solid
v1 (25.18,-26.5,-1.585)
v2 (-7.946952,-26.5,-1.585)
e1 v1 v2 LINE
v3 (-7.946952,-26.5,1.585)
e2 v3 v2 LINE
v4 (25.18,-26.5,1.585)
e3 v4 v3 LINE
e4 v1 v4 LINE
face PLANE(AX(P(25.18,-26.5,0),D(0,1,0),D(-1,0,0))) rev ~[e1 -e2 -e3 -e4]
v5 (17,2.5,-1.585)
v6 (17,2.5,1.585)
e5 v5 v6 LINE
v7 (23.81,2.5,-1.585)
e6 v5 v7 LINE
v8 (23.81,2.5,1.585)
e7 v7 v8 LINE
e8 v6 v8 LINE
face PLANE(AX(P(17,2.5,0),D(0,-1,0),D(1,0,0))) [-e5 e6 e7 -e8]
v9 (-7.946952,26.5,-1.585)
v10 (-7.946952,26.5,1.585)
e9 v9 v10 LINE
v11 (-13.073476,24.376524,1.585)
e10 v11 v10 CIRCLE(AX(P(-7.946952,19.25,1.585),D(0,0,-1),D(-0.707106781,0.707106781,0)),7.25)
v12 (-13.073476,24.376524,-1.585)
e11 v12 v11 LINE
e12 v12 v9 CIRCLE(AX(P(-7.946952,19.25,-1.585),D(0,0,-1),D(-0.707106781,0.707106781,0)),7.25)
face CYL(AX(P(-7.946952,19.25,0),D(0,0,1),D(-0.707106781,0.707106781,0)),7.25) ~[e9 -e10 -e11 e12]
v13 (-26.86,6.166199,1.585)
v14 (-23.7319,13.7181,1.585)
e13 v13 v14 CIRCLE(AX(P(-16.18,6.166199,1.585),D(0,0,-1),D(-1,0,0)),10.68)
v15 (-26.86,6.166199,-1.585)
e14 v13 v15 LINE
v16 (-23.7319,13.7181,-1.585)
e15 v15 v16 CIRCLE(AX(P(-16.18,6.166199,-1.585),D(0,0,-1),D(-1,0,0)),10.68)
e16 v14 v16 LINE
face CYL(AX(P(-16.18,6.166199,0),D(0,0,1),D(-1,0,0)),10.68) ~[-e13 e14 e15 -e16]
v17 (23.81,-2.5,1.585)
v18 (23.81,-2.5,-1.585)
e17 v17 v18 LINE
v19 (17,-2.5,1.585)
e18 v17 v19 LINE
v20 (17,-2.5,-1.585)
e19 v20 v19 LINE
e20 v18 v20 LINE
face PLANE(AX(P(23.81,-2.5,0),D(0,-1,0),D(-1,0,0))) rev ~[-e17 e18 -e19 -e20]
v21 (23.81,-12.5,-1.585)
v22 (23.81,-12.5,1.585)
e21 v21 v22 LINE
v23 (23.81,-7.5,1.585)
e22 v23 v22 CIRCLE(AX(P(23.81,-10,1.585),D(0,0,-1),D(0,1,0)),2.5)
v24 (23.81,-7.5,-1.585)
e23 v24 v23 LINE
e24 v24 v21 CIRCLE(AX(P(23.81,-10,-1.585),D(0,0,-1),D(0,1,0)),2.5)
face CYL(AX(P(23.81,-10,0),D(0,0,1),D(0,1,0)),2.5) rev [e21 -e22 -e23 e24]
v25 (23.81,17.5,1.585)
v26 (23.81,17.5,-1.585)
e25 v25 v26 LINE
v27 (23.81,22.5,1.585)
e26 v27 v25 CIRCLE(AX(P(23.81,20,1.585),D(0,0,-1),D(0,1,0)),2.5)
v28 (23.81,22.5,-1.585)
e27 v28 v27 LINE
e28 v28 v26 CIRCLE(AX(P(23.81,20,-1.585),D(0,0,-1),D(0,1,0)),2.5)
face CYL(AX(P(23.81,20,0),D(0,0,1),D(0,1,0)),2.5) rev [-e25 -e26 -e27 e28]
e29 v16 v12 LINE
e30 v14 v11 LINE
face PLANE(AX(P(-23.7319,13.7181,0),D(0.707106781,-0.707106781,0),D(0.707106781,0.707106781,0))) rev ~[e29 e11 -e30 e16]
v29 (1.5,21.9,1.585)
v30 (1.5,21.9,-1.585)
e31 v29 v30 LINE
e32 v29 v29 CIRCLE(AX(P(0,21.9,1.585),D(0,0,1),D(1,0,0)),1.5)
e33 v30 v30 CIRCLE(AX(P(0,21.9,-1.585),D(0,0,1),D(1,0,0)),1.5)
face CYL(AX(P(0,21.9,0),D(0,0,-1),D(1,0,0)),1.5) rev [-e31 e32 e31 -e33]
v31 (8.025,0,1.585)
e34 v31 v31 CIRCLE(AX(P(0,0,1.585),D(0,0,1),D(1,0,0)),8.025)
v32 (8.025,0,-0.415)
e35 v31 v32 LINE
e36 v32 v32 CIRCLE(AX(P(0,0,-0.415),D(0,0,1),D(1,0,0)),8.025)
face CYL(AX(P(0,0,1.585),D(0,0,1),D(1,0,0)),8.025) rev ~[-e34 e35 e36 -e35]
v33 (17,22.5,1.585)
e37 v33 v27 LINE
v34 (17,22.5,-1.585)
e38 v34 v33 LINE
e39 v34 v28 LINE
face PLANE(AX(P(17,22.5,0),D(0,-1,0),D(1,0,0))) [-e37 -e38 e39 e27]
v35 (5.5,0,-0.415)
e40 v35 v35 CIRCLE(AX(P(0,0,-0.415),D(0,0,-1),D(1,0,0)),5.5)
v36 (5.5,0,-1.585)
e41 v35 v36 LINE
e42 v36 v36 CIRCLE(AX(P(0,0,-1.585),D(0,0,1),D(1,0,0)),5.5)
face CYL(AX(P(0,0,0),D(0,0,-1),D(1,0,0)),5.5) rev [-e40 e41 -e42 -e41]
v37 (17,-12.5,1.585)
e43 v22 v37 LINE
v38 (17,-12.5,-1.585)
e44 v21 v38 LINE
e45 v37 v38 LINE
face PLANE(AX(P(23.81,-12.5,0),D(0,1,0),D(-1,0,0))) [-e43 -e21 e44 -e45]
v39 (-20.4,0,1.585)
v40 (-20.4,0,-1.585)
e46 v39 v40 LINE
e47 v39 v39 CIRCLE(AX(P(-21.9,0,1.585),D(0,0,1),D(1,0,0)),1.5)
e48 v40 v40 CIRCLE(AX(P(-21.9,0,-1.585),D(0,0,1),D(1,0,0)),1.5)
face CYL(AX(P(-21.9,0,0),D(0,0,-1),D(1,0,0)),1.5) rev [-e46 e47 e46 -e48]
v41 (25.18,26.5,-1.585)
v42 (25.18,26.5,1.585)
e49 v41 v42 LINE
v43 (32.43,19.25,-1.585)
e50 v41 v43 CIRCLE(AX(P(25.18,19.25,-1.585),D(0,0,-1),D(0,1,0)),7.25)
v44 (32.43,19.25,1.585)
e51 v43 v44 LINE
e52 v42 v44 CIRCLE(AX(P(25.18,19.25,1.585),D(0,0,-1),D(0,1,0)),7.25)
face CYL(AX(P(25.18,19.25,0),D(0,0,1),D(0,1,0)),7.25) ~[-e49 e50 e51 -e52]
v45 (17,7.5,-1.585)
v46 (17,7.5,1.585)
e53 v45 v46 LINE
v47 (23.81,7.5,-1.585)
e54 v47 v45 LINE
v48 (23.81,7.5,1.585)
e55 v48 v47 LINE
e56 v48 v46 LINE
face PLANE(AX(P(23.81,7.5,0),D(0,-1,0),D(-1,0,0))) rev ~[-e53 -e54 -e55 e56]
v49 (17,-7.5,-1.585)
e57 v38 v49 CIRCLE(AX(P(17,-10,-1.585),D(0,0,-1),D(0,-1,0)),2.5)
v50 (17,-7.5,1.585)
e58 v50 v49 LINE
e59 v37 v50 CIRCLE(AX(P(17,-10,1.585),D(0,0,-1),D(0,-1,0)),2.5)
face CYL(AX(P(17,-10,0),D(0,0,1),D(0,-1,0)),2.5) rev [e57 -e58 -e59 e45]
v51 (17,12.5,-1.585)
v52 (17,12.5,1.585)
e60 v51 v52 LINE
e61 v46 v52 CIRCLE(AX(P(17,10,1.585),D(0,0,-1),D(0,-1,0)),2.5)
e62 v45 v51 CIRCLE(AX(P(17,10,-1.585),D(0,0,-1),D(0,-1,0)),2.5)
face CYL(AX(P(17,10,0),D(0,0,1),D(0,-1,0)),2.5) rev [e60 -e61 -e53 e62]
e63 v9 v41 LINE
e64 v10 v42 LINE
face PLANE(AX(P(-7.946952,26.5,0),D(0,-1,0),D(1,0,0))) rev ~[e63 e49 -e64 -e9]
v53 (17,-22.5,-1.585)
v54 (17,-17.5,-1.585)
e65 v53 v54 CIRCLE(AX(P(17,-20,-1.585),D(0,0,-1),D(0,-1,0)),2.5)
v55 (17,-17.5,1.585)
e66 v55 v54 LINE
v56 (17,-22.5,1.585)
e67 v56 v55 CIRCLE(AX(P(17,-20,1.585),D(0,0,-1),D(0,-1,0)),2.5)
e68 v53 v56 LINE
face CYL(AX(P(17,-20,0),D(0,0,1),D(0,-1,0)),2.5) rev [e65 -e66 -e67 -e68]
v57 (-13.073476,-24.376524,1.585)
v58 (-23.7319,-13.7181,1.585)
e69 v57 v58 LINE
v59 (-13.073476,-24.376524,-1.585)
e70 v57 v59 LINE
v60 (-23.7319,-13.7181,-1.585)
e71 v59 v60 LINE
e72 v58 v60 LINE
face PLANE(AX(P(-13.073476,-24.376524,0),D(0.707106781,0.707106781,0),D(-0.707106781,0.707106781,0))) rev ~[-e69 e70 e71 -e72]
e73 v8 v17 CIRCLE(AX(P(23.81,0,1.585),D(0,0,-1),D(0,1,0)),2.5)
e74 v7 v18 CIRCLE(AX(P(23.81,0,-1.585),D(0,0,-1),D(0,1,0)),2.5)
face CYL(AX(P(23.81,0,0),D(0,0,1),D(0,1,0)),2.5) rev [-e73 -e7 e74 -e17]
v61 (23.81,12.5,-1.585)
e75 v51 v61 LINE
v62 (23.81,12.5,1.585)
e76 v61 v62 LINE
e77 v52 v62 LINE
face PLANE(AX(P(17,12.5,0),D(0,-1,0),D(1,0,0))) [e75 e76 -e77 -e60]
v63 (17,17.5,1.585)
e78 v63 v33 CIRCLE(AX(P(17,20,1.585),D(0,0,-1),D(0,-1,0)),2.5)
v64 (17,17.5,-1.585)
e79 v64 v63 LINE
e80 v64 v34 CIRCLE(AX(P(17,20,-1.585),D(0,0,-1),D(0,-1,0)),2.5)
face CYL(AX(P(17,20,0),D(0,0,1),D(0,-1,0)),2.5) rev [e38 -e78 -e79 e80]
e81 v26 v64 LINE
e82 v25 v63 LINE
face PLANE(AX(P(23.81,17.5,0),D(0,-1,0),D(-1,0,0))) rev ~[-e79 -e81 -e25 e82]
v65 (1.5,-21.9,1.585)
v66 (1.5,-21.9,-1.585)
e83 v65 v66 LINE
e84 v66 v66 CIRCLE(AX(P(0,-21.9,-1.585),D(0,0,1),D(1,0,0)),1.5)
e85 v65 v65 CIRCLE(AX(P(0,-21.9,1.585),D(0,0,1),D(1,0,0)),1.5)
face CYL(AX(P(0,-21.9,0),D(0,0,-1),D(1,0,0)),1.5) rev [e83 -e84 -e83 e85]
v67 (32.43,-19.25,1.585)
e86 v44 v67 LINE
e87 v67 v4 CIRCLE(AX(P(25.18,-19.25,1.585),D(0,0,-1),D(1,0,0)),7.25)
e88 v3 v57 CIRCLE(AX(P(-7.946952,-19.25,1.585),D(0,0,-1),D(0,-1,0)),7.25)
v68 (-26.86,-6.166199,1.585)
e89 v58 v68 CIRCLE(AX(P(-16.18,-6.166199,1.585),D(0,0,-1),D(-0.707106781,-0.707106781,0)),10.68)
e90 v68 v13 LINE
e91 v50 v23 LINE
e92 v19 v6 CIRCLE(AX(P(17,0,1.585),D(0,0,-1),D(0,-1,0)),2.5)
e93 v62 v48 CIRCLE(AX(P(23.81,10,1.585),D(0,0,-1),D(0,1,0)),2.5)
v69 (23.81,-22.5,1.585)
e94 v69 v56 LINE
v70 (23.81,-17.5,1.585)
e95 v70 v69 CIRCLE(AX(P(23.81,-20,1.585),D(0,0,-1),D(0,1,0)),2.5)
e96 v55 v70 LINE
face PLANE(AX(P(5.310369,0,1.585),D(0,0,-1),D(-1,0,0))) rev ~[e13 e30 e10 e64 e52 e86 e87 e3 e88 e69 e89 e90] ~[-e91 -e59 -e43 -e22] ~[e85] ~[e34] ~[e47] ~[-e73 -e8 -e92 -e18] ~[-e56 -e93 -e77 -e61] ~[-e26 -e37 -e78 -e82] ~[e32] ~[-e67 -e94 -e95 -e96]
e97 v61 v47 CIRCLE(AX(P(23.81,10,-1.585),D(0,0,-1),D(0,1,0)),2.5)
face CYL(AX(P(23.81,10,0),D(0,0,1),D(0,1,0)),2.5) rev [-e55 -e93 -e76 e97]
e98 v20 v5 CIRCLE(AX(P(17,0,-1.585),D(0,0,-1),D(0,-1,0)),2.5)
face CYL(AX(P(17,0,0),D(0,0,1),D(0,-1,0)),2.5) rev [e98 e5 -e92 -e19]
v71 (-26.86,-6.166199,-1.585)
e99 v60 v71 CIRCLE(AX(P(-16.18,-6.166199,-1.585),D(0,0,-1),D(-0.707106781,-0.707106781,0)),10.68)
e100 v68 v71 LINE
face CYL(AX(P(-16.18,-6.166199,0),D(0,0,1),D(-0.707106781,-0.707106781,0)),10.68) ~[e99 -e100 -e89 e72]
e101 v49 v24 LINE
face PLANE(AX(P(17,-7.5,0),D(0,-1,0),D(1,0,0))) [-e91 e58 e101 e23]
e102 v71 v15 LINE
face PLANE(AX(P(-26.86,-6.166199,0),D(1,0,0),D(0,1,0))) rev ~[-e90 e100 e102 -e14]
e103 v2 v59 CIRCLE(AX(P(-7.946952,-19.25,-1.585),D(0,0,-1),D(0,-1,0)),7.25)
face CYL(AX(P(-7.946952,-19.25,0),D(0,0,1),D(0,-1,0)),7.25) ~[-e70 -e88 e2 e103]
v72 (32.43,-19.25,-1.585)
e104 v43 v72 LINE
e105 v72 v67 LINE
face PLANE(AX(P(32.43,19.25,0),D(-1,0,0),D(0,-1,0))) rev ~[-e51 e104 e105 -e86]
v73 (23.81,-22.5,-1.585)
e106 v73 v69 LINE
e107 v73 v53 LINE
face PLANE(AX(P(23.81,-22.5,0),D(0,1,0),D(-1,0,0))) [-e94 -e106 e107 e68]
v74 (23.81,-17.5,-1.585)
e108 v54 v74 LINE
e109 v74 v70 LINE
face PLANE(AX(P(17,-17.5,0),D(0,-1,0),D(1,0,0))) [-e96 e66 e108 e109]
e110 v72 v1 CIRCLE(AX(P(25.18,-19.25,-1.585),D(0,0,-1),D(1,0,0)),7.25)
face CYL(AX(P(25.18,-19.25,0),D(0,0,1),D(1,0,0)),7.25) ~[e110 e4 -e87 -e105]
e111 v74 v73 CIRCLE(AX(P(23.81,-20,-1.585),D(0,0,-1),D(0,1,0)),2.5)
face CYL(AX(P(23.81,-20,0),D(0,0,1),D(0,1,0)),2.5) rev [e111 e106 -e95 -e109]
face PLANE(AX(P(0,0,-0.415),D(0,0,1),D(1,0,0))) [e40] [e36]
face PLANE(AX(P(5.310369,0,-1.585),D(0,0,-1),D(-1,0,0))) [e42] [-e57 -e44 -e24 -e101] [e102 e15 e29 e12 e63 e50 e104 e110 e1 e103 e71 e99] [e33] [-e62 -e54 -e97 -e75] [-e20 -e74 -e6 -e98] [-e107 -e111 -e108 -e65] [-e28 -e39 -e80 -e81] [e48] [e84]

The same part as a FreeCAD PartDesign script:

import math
import FreeCAD as App
import Part
import Sketcher
from FreeCAD import Vector

doc = App.newDocument("Part")
body = doc.addObject("PartDesign::Body", "Body")

sketch1 = body.newObject("Sketcher::SketchObject", "Sketch")
sketch1.AttachmentSupport = (doc.getObject("XY_Plane"), [""])
sketch1.MapMode = "FlatFace"
sketch1.addGeometry([
    Part.LineSegment(Vector(-7.9, -26.5, 0), Vector(25.2, -26.5, 0)),
    Part.ArcOfCircle(Part.Circle(Vector(25.2, -19.3, 0), Vector(0, 0, 1), 7.2), math.radians(-90), math.radians(0)),
    Part.LineSegment(Vector(32.4, -19.2, 0), Vector(32.4, 19.2, 0)),
    Part.ArcOfCircle(Part.Circle(Vector(25.2, 19.3, 0), Vector(0, 0, 1), 7.2), math.radians(0), math.radians(90)),
    Part.LineSegment(Vector(25.2, 26.5, 0), Vector(-7.9, 26.5, 0)),
    Part.ArcOfCircle(Part.Circle(Vector(-7.9, 19.3, 0), Vector(0, 0, 1), 7.2), math.radians(90), math.radians(135)),
    Part.LineSegment(Vector(-13.1, 24.4, 0), Vector(-23.7, 13.7, 0)),
    Part.ArcOfCircle(Part.Circle(Vector(-16.2, 6.2, 0), Vector(0, 0, 1), 10.7), math.radians(135), math.radians(180)),
    Part.LineSegment(Vector(-26.9, 6.2, 0), Vector(-26.9, -6.2, 0)),
    Part.ArcOfCircle(Part.Circle(Vector(-16.2, -6.2, 0), Vector(0, 0, 1), 10.7), math.radians(180), math.radians(225)),
    Part.LineSegment(Vector(-23.7, -13.7, 0), Vector(-13.1, -24.4, 0)),
    Part.ArcOfCircle(Part.Circle(Vector(-7.9, -19.3, 0), Vector(0, 0, 1), 7.2), math.radians(-135), math.radians(-90)),
    Part.LineSegment(Vector(17, -17.5, 0), Vector(23.8, -17.5, 0)),
    Part.ArcOfCircle(Part.Circle(Vector(23.8, -20, 0), Vector(0, 0, 1), 2.5), math.radians(-90), math.radians(90)),
    Part.LineSegment(Vector(23.8, -22.5, 0), Vector(17, -22.5, 0)),
    Part.ArcOfCircle(Part.Circle(Vector(17, -20, 0), Vector(0, 0, 1), 2.5), math.radians(90), math.radians(270)),
    Part.LineSegment(Vector(17, -7.5, 0), Vector(23.8, -7.5, 0)),
    Part.ArcOfCircle(Part.Circle(Vector(23.8, -10, 0), Vector(0, 0, 1), 2.5), math.radians(-90), math.radians(90)),
    Part.LineSegment(Vector(23.8, -12.5, 0), Vector(17, -12.5, 0)),
    Part.ArcOfCircle(Part.Circle(Vector(17, -10, 0), Vector(0, 0, 1), 2.5), math.radians(90), math.radians(270)),
    Part.Circle(Vector(0, -21.9, 0), Vector(0, 0, 1), 1.5),
    Part.LineSegment(Vector(17, 2.5, 0), Vector(23.8, 2.5, 0)),
    Part.ArcOfCircle(Part.Circle(Vector(23.8, 0, 0), Vector(0, 0, 1), 2.5), math.radians(-90), math.radians(90)),
    Part.LineSegment(Vector(23.8, -2.5, 0), Vector(17, -2.5, 0)),
    Part.ArcOfCircle(Part.Circle(Vector(17, 0, 0), Vector(0, 0, 1), 2.5), math.radians(90), math.radians(270)),
    Part.LineSegment(Vector(17, 12.5, 0), Vector(23.8, 12.5, 0)),
    Part.ArcOfCircle(Part.Circle(Vector(23.8, 10, 0), Vector(0, 0, 1), 2.5), math.radians(-90), math.radians(90)),
    Part.LineSegment(Vector(23.8, 7.5, 0), Vector(17, 7.5, 0)),
    Part.ArcOfCircle(Part.Circle(Vector(17, 10, 0), Vector(0, 0, 1), 2.5), math.radians(90), math.radians(270)),
    Part.LineSegment(Vector(17, 22.5, 0), Vector(23.8, 22.5, 0)),
    Part.ArcOfCircle(Part.Circle(Vector(23.8, 20, 0), Vector(0, 0, 1), 2.5), math.radians(-90), math.radians(90)),
    Part.LineSegment(Vector(23.8, 17.5, 0), Vector(17, 17.5, 0)),
    Part.ArcOfCircle(Part.Circle(Vector(17, 20, 0), Vector(0, 0, 1), 2.5), math.radians(90), math.radians(270)),
    Part.Circle(Vector(0, 0, 0), Vector(0, 0, 1), 5.5),
    Part.Circle(Vector(-21.9, 0, 0), Vector(0, 0, 1), 1.5),
    Part.Circle(Vector(0, 21.9, 0), Vector(0, 0, 1), 1.5),
], False)
sketch1.addConstraint([
    Sketcher.Constraint("Tangent", 0, 2, 1, 1),
    Sketcher.Constraint("Tangent", 1, 2, 2, 1),
    Sketcher.Constraint("Tangent", 2, 2, 3, 1),
    Sketcher.Constraint("Tangent", 3, 2, 4, 1),
    Sketcher.Constraint("Tangent", 4, 2, 5, 1),
    Sketcher.Constraint("Tangent", 5, 2, 6, 1),
    Sketcher.Constraint("Tangent", 6, 2, 7, 1),
    Sketcher.Constraint("Tangent", 7, 2, 8, 1),
    Sketcher.Constraint("Tangent", 8, 2, 9, 1),
    Sketcher.Constraint("Tangent", 9, 2, 10, 1),
    Sketcher.Constraint("Tangent", 10, 2, 11, 1),
    Sketcher.Constraint("Tangent", 11, 2, 0, 1),
    Sketcher.Constraint("Tangent", 12, 2, 13, 2),
    Sketcher.Constraint("Tangent", 13, 1, 14, 1),
    Sketcher.Constraint("Tangent", 14, 2, 15, 2),
    Sketcher.Constraint("Tangent", 15, 1, 12, 1),
    Sketcher.Constraint("Tangent", 16, 2, 17, 2),
    Sketcher.Constraint("Tangent", 17, 1, 18, 1),
    Sketcher.Constraint("Tangent", 18, 2, 19, 2),
    Sketcher.Constraint("Tangent", 19, 1, 16, 1),
    Sketcher.Constraint("Tangent", 21, 2, 22, 2),
    Sketcher.Constraint("Tangent", 22, 1, 23, 1),
    Sketcher.Constraint("Tangent", 23, 2, 24, 2),
    Sketcher.Constraint("Tangent", 24, 1, 21, 1),
    Sketcher.Constraint("Tangent", 25, 2, 26, 2),
    Sketcher.Constraint("Tangent", 26, 1, 27, 1),
    Sketcher.Constraint("Tangent", 27, 2, 28, 2),
    Sketcher.Constraint("Tangent", 28, 1, 25, 1),
    Sketcher.Constraint("Tangent", 29, 2, 30, 2),
    Sketcher.Constraint("Tangent", 30, 1, 31, 1),
    Sketcher.Constraint("Tangent", 31, 2, 32, 2),
    Sketcher.Constraint("Tangent", 32, 1, 29, 1),
    Sketcher.Constraint("Horizontal", 0),
    Sketcher.Constraint("Vertical", 2),
    Sketcher.Constraint("Horizontal", 4),
    Sketcher.Constraint("Vertical", 8),
    Sketcher.Constraint("Horizontal", 12),
    Sketcher.Constraint("Horizontal", 14),
    Sketcher.Constraint("Horizontal", 16),
    Sketcher.Constraint("Horizontal", 18),
    Sketcher.Constraint("Horizontal", 21),
    Sketcher.Constraint("Horizontal", 23),
    Sketcher.Constraint("Horizontal", 25),
    Sketcher.Constraint("Horizontal", 27),
    Sketcher.Constraint("Horizontal", 29),
    Sketcher.Constraint("Horizontal", 31),
    Sketcher.Constraint("Coincident", 33, 3, -1, 1),
    Sketcher.Constraint("Equal", 1, 3),
    Sketcher.Constraint("Equal", 3, 5),
    Sketcher.Constraint("Equal", 7, 9),
    Sketcher.Constraint("Equal", 5, 11),
    Sketcher.Constraint("Equal", 15, 17),
    Sketcher.Constraint("Equal", 19, 22),
    Sketcher.Constraint("Equal", 24, 26),
    Sketcher.Constraint("Equal", 28, 30),
    Sketcher.Constraint("Equal", 20, 34),
    Sketcher.Constraint("Equal", 34, 35),
    Sketcher.Constraint("Symmetric", 20, 3, 35, 3, -1, 1),
    Sketcher.Constraint("Symmetric", 5, 3, 11, 3, -1),
    Sketcher.Constraint("Symmetric", 17, 3, 26, 3, -1),
    Sketcher.Constraint("Symmetric", 13, 3, 30, 3, -1),
    Sketcher.Constraint("PointOnObject", 20, 3, -2),
    Sketcher.Constraint("PointOnObject", 22, 3, -1),
    Sketcher.Constraint("PointOnObject", 34, 3, -1),
    Sketcher.Constraint("Perpendicular", 6, 10),
    Sketcher.Constraint("Vertical", 13, 3, 17, 3),
    Sketcher.Constraint("Vertical", 15, 3, 19, 3),
    Sketcher.Constraint("Vertical", 17, 3, 22, 3),
    Sketcher.Constraint("Vertical", 19, 3, 24, 3),
    Sketcher.Constraint("Vertical", 24, 3, 28, 3),
    Sketcher.Constraint("Vertical", 28, 3, 32, 3),
    Sketcher.Constraint("Vertical", 6, 2, 9, 2),
    Sketcher.Constraint("Diameter", 20, 3.0),
    Sketcher.Constraint("Diameter", 33, 11.0),
    Sketcher.Constraint("Radius", 13, 2.5),
    Sketcher.Constraint("Radius", 1, 7.25),
    Sketcher.Constraint("Radius", 7, 10.68),
    Sketcher.Constraint("DistanceY", 2, 1, 2, 2, 38.5),
    Sketcher.Constraint("DistanceY", 13, 3, -1, 1, 20.0),
    Sketcher.Constraint("DistanceX", -1, 1, 15, 3, 17.0),
    Sketcher.Constraint("DistanceY", 17, 3, -1, 1, 10.0),
    Sketcher.Constraint("DistanceX", 12, 1, 12, 2, 6.81),
    Sketcher.Constraint("DistanceY", 20, 3, -1, 1, 21.9),
    Sketcher.Constraint("DistanceX", 34, 3, -1, 1, 21.9),
    Sketcher.Constraint("DistanceX", -1, 1, 1, 3, 25.18),
    Sketcher.Constraint("DistanceX", 7, 3, -1, 1, 16.18),
    Sketcher.Constraint("DistanceY", 8, 2, 8, 1, 12.332398),
])
pad1 = body.newObject("PartDesign::Pad", "Pad")
pad1.Profile = sketch1
pad1.Length = 3.17
pad1.Midplane = True

sketch2 = body.newObject("Sketcher::SketchObject", "Sketch001")
sketch2.AttachmentSupport = (doc.getObject("XY_Plane"), [""])
sketch2.MapMode = "FlatFace"
sketch2.AttachmentOffset = App.Placement(Vector(0, 0, 1.585), App.Rotation())
sketch2.addGeometry(Part.Circle(Vector(0, 0, 0), Vector(0, 0, 1), 8), False)
sketch2.addConstraint([
    Sketcher.Constraint("Coincident", 0, 3, -1, 1),
    Sketcher.Constraint("Diameter", 0, 16.05),
])
pocket1 = body.newObject("PartDesign::Pocket", "Pocket")
pocket1.Profile = sketch2
pocket1.Length = 2

doc.recompute()
